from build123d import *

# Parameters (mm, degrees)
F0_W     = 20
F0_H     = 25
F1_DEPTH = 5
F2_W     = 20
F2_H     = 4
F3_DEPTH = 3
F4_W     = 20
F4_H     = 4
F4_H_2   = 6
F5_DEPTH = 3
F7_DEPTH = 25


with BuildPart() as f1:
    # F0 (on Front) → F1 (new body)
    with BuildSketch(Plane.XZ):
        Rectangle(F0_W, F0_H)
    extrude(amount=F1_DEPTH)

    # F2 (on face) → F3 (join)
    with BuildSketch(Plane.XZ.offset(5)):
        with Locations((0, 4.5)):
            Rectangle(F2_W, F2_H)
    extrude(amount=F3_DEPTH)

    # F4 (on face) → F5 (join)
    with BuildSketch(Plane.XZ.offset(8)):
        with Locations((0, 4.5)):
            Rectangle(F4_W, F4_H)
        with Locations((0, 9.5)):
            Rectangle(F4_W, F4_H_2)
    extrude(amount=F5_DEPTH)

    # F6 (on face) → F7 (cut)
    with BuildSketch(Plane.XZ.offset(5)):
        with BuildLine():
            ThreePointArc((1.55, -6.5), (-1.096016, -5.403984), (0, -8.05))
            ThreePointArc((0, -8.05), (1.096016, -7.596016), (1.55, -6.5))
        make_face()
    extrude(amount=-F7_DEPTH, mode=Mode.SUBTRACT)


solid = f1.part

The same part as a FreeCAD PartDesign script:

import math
import FreeCAD as App
import Part
import Sketcher
from FreeCAD import Vector


def add_polygon(sketch, points):
    """Adds a closed chain of lines whose ends are joined by coincident constraints."""
    first, n = sketch.GeometryCount, len(points)
    for a, b in zip(points, points[1:] + points[:1]):
        sketch.addGeometry(Part.LineSegment(App.Vector(*a, 0), App.Vector(*b, 0)), False)
    for i in range(n):
        sketch.addConstraint(Sketcher.Constraint("Coincident", first + i, 2, first + (i + 1) % n, 1))

doc = App.newDocument("Part")
body = doc.addObject("PartDesign::Body", "Body")

# Sketch on XZ plane
sketch1 = body.newObject("Sketcher::SketchObject", "Sketch")
sketch1.AttachmentSupport = (doc.getObject("XZ_Plane"), [""])
sketch1.MapMode = "FlatFace"
add_polygon(sketch1, [(-10, 12), (-10, -12), (10, -12), (10, 12)])  # lines 0-3
sketch1.addConstraint([
    Sketcher.Constraint("Vertical", 0),
    Sketcher.Constraint("Horizontal", 1),
    Sketcher.Constraint("Vertical", 2),
    Sketcher.Constraint("Horizontal", 3),
    Sketcher.Constraint("Symmetric", 0, 2, 2, 2, -1, 1),
    Sketcher.Constraint("DistanceX", 1, 1, 1, 2, 20.0),
    Sketcher.Constraint("DistanceY", 0, 2, 0, 1, 25.0),
])
pad1 = body.newObject("PartDesign::Pad", "Pad")
pad1.Profile = sketch1
pad1.Length = 5

# Sketch on XZ plane
sketch2 = body.newObject("Sketcher::SketchObject", "Sketch001")
sketch2.AttachmentSupport = (doc.getObject("XZ_Plane"), [""])
sketch2.MapMode = "FlatFace"
sketch2.AttachmentOffset = App.Placement(Vector(0, 0, 5), App.Rotation())
add_polygon(sketch2, [(-10, 6.5), (-10, 2.5), (10, 2.5), (10, 6.5)])  # lines 0-3
sketch2.addConstraint([
    Sketcher.Constraint("Vertical", 0),
    Sketcher.Constraint("Horizontal", 1),
    Sketcher.Constraint("Vertical", 2),
    Sketcher.Constraint("Horizontal", 3),
    Sketcher.Constraint("DistanceX", 1, 1, 1, 2, 20.0),
    Sketcher.Constraint("DistanceY", 0, 2, 0, 1, 4.0),
    Sketcher.Constraint("DistanceX", 0, 2, -1, 1, 10.0),
    Sketcher.Constraint("DistanceY", -1, 1, 0, 2, 2.5),
])
pad2 = body.newObject("PartDesign::Pad", "Pad001")
pad2.Profile = sketch2
pad2.Length = 3

# Sketch on XZ plane
sketch3 = body.newObject("Sketcher::SketchObject", "Sketch002")
sketch3.AttachmentSupport = (doc.getObject("XZ_Plane"), [""])
sketch3.MapMode = "FlatFace"
sketch3.AttachmentOffset = App.Placement(Vector(0, 0, 8), App.Rotation())
add_polygon(sketch3, [(-10, 2), (10, 2), (10, 12), (-10, 12)])  # lines 0-3
sketch3.addConstraint([
    Sketcher.Constraint("Horizontal", 0),
    Sketcher.Constraint("Vertical", 1),
    Sketcher.Constraint("Horizontal", 2),
    Sketcher.Constraint("Vertical", 3),
    Sketcher.Constraint("DistanceX", 0, 1, 0, 2, 20.0),
    Sketcher.Constraint("DistanceY", 1, 1, 1, 2, 10.0),
    Sketcher.Constraint("DistanceX", -1, 1, 0, 2, 10.0),
    Sketcher.Constraint("DistanceY", -1, 1, 0, 2, 2.5),
])
pad3 = body.newObject("PartDesign::Pad", "Pad002")
pad3.Profile = sketch3
pad3.Length = 3

# Sketch on XZ plane
sketch4 = body.newObject("Sketcher::SketchObject", "Sketch003")
sketch4.AttachmentSupport = (doc.getObject("XZ_Plane"), [""])
sketch4.MapMode = "FlatFace"
sketch4.AttachmentOffset = App.Placement(Vector(0, 0, 5), App.Rotation())
sketch4.addGeometry([
    Part.ArcOfCircle(Part.Circle(Vector(0, -6.5, 0), Vector(0, 0, 1), 1.6), math.radians(0), math.radians(270)),
    Part.ArcOfCircle(Part.Circle(Vector(0, -6.5, 0), Vector(0, 0, 1), 1.5), math.radians(-90), math.radians(0)),
], False)
sketch4.addConstraint([
    Sketcher.Constraint("Tangent", 0, 1, 1, 2),
    Sketcher.Constraint("Coincident", 1, 1, 0, 2),
    Sketcher.Constraint("PointOnObject", 0, 3, -2),
    Sketcher.Constraint("PointOnObject", 1, 1, -2),
    Sketcher.Constraint("Horizontal", 1, 3, 0, 1),
    Sketcher.Constraint("Radius", 0, 1.55),
    Sketcher.Constraint("DistanceY", 0, 3, -1, 1, 6.5),
])
pocket1 = body.newObject("PartDesign::Pocket", "Pocket")
pocket1.Profile = sketch4
pocket1.Length = 25

doc.recompute()
